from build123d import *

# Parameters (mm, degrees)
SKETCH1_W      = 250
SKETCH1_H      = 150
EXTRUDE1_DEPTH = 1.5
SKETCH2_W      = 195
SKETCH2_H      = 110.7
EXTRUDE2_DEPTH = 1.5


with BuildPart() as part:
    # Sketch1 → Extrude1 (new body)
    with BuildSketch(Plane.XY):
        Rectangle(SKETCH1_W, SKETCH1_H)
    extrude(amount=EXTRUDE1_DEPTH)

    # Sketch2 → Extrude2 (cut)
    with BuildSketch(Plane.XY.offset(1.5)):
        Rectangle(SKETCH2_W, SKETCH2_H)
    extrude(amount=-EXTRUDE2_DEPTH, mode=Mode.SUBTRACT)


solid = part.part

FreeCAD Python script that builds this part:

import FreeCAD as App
import Part
import Sketcher
from FreeCAD import Vector

doc = App.newDocument("Part")
body = doc.addObject("PartDesign::Body", "Body")

sketch1 = doc.addObject("Sketcher::SketchObject", "Sketch")
body.addObject(sketch1)
sketch1.AttachmentSupport = (doc.XY_Plane, [""])
sketch1.MapMode = "FlatFace"
sketch1.addGeometry(Part.LineSegment(Vector(-125, 75, 0), Vector(-125, -75, 0)), False)
sketch1.addGeometry(Part.LineSegment(Vector(-125, -75, 0), Vector(125, -75, 0)), False)
sketch1.addGeometry(Part.LineSegment(Vector(125, -75, 0), Vector(125, 75, 0)), False)
sketch1.addGeometry(Part.LineSegment(Vector(125, 75, 0), Vector(-125, 75, 0)), False)
sketch1.addConstraint(Sketcher.Constraint("Coincident", 0, 2, 1, 1))
sketch1.addConstraint(Sketcher.Constraint("Coincident", 1, 2, 2, 1))
sketch1.addConstraint(Sketcher.Constraint("Coincident", 2, 2, 3, 1))
sketch1.addConstraint(Sketcher.Constraint("Coincident", 3, 2, 0, 1))
sketch1.addConstraint(Sketcher.Constraint("Vertical", 0))
sketch1.addConstraint(Sketcher.Constraint("Horizontal", 1))
sketch1.addConstraint(Sketcher.Constraint("Vertical", 2))
sketch1.addConstraint(Sketcher.Constraint("Horizontal", 3))
sketch1.addConstraint(Sketcher.Constraint("Symmetric", 0, 2, 2, 2, -1, 1))
sketch1.addConstraint(Sketcher.Constraint("DistanceX", 1, 1, 1, 2, 250.0))
sketch1.addConstraint(Sketcher.Constraint("DistanceY", 0, 2, 0, 1, 150.0))
pad1 = doc.addObject("PartDesign::Pad", "Pad")
body.addObject(pad1)
pad1.Profile = sketch1
pad1.Length = 1.5

sketch2 = doc.addObject("Sketcher::SketchObject", "Sketch001")
body.addObject(sketch2)
sketch2.AttachmentSupport = (doc.XY_Plane, [""])
sketch2.MapMode = "FlatFace"
sketch2.AttachmentOffset = App.Placement(Vector(0, 0, 1.5), App.Rotation())
sketch2.addGeometry(Part.LineSegment(Vector(-97.5, 55.35, 0), Vector(-97.5, -55.35, 0)), False)
sketch2.addGeometry(Part.LineSegment(Vector(-97.5, -55.35, 0), Vector(97.5, -55.35, 0)), False)
sketch2.addGeometry(Part.LineSegment(Vector(97.5, -55.35, 0), Vector(97.5, 55.35, 0)), False)
sketch2.addGeometry(Part.LineSegment(Vector(97.5, 55.35, 0), Vector(-97.5, 55.35, 0)), False)
sketch2.addConstraint(Sketcher.Constraint("Coincident", 0, 2, 1, 1))
sketch2.addConstraint(Sketcher.Constraint("Coincident", 1, 2, 2, 1))
sketch2.addConstraint(Sketcher.Constraint("Coincident", 2, 2, 3, 1))
sketch2.addConstraint(Sketcher.Constraint("Coincident", 3, 2, 0, 1))
sketch2.addConstraint(Sketcher.Constraint("Vertical", 0))
sketch2.addConstraint(Sketcher.Constraint("Horizontal", 1))
sketch2.addConstraint(Sketcher.Constraint("Vertical", 2))
sketch2.addConstraint(Sketcher.Constraint("Horizontal", 3))
sketch2.addConstraint(Sketcher.Constraint("Symmetric", 0, 2, 2, 2, -1, 1))
sketch2.addConstraint(Sketcher.Constraint("DistanceX", 1, 1, 1, 2, 195.0))
sketch2.addConstraint(Sketcher.Constraint("DistanceY", 0, 2, 0, 1, 110.7))
pocket1 = doc.addObject("PartDesign::Pocket", "Pocket")
body.addObject(pocket1)
pocket1.Profile = sketch2
pocket1.Length = 1.5

doc.recompute()
